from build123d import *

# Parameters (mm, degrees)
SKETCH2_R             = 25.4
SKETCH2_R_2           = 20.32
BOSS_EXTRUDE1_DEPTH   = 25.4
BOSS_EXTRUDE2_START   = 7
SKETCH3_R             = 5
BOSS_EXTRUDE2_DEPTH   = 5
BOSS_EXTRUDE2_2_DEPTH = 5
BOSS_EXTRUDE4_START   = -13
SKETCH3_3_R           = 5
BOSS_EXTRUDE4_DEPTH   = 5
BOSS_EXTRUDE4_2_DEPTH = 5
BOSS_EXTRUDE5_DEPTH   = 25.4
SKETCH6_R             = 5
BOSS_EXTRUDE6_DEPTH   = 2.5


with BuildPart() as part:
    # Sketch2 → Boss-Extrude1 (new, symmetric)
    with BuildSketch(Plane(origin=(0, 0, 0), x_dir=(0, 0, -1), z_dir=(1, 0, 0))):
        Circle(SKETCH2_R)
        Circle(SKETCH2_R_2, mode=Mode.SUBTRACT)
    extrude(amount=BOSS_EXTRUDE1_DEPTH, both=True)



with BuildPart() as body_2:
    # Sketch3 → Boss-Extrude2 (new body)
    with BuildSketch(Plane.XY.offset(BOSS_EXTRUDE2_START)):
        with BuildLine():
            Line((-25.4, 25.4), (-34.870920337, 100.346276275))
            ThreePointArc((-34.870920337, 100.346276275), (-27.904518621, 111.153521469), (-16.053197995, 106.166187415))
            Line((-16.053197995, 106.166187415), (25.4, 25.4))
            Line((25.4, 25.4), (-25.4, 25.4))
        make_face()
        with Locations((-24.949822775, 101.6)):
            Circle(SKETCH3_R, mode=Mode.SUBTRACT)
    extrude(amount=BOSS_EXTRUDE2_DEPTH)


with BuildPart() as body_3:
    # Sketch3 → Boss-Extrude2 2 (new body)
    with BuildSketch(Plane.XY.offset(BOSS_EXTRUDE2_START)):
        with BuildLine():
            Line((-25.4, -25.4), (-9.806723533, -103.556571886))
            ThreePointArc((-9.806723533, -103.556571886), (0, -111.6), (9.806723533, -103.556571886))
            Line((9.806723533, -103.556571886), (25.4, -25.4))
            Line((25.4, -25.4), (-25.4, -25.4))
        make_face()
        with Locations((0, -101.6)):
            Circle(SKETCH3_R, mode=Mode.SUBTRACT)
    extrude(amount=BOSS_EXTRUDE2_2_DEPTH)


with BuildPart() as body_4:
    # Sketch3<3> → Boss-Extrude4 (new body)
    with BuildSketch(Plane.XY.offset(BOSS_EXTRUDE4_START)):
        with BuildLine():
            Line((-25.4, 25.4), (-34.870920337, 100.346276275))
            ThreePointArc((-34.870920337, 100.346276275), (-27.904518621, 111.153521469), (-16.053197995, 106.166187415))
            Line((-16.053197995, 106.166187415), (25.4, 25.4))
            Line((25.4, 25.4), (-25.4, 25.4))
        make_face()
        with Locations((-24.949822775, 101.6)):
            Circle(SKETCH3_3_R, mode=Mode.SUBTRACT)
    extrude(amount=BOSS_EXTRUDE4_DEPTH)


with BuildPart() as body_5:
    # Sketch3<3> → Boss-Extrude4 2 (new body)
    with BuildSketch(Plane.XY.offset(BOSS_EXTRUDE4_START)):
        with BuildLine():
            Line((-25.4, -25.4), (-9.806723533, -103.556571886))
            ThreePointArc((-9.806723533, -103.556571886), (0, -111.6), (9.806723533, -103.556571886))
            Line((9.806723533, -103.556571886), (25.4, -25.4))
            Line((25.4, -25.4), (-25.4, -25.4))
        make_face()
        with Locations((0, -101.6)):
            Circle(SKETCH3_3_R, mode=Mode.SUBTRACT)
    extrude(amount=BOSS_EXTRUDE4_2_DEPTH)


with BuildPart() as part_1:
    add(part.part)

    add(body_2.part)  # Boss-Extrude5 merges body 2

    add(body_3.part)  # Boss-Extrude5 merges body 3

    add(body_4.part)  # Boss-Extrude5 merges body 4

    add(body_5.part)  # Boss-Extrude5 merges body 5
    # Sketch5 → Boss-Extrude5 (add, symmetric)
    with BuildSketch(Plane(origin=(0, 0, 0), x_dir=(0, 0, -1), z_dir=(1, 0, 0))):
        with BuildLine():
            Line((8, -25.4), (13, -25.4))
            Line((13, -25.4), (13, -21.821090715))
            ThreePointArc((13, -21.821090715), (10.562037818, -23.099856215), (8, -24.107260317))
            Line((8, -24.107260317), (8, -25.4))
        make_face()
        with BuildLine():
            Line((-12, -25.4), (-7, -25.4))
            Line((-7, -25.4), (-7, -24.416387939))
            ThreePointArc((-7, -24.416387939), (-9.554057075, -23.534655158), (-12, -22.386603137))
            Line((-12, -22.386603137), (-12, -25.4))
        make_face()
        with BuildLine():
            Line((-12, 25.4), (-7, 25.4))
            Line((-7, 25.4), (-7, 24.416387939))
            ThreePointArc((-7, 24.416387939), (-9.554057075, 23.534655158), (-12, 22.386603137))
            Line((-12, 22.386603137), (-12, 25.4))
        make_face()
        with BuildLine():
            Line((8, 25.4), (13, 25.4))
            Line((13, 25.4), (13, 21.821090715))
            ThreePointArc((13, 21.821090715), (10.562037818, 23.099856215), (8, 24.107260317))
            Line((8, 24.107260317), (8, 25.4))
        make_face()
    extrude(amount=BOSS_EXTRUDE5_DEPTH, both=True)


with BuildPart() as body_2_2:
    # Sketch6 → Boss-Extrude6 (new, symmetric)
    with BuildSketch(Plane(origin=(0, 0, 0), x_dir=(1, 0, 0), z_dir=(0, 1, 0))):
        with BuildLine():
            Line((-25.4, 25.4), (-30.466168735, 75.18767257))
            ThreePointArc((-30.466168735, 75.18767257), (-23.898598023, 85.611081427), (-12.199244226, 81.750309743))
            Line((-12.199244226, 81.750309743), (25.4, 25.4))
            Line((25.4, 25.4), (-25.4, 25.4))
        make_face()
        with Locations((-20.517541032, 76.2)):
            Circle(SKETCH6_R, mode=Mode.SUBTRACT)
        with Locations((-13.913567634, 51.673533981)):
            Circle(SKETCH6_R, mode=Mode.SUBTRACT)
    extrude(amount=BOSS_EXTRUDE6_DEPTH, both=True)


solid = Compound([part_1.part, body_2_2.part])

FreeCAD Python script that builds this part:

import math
import FreeCAD as App
import Part
import Sketcher
from FreeCAD import Vector

doc = App.newDocument("Part")
body = doc.addObject("PartDesign::Body", "Body")

# Sketch on YZ plane
sketch1 = body.newObject("Sketcher::SketchObject", "Sketch")
sketch1.AttachmentSupport = (doc.getObject("YZ_Plane"), [""])
sketch1.MapMode = "FlatFace"
sketch1.addGeometry(Part.Circle(Vector(0, 0, 0), Vector(0, 0, 1), 25), False)
sketch1.addGeometry(Part.Circle(Vector(0, 0, 0), Vector(0, 0, 1), 20), False)
sketch1.addConstraint(Sketcher.Constraint("Coincident", 0, 3, -1, 1))
sketch1.addConstraint(Sketcher.Constraint("Coincident", 1, 3, -1, 1))
sketch1.addConstraint(Sketcher.Constraint("Diameter", 0, 50.8))
sketch1.addConstraint(Sketcher.Constraint("Diameter", 1, 40.64))
pad1 = body.newObject("PartDesign::Pad", "Pad")
pad1.Profile = sketch1
pad1.Length = 50.8
pad1.Midplane = True
body2 = doc.addObject("PartDesign::Body", "Body001")

# Sketch on XY plane
sketch2 = body2.newObject("Sketcher::SketchObject", "Sketch001")
sketch2.AttachmentSupport = (doc.getObject("XY_Plane001"), [""])
sketch2.MapMode = "FlatFace"
sketch2.AttachmentOffset = App.Placement(Vector(0, 0, 7), App.Rotation())
sketch2.addGeometry(Part.LineSegment(Vector(-35, 100, 0), Vector(-25, 25, 0)), False)
sketch2.addGeometry(Part.LineSegment(Vector(-25, 25, 0), Vector(25, 25, 0)), False)
sketch2.addGeometry(Part.LineSegment(Vector(25, 25, 0), Vector(-16, 106, 0)), False)
sketch2.addGeometry(Part.ArcOfCircle(Part.Circle(Vector(-25, 102, 0), Vector(0, 0, 1), 10), math.radians(27), math.radians(187)), False)
sketch2.addGeometry(Part.Circle(Vector(-25, 102, 0), Vector(0, 0, 1), 5), False)
sketch2.addConstraint(Sketcher.Constraint("Coincident", 0, 2, 1, 1))
sketch2.addConstraint(Sketcher.Constraint("Coincident", 1, 2, 2, 1))
sketch2.addConstraint(Sketcher.Constraint("Tangent", 2, 2, 3, 1))
sketch2.addConstraint(Sketcher.Constraint("Tangent", 3, 2, 0, 1))
sketch2.addConstraint(Sketcher.Constraint("Horizontal", 1))
sketch2.addConstraint(Sketcher.Constraint("Coincident", 4, 3, 3, 3))
sketch2.addConstraint(Sketcher.Constraint("Diameter", 4, 10.0))
sketch2.addConstraint(Sketcher.Constraint("Radius", 3, 10.0))
sketch2.addConstraint(Sketcher.Constraint("DistanceX", 1, 1, 1, 2, 50.8))
sketch2.addConstraint(Sketcher.Constraint("DistanceY", -1, 1, 3, 3, 101.6))
sketch2.addConstraint(Sketcher.Constraint("DistanceX", 0, 2, -1, 1, 25.4))
sketch2.addConstraint(Sketcher.Constraint("DistanceY", -1, 1, 0, 2, 25.4))
sketch2.addConstraint(Sketcher.Constraint("DistanceX", 3, 2, -1, 1, 34.87092))
pad2 = body2.newObject("PartDesign::Pad", "Pad001")
pad2.Profile = sketch2
pad2.Length = 5
body3 = doc.addObject("PartDesign::Body", "Body002")

# Sketch on XY plane
sketch3 = body3.newObject("Sketcher::SketchObject", "Sketch002")
sketch3.AttachmentSupport = (doc.getObject("XY_Plane002"), [""])
sketch3.MapMode = "FlatFace"
sketch3.AttachmentOffset = App.Placement(Vector(0, 0, 7), App.Rotation())
sketch3.addGeometry(Part.LineSegment(Vector(-25, -25, 0), Vector(-10, -104, 0)), False)
sketch3.addGeometry(Part.ArcOfCircle(Part.Circle(Vector(0, -102, 0), Vector(0, 0, 1), 10), math.radians(-169), math.radians(-11)), False)
sketch3.addGeometry(Part.LineSegment(Vector(10, -104, 0), Vector(25, -25, 0)), False)
sketch3.addGeometry(Part.LineSegment(Vector(25, -25, 0), Vector(-25, -25, 0)), False)
sketch3.addGeometry(Part.Circle(Vector(0, -102, 0), Vector(0, 0, 1), 5), False)
sketch3.addConstraint(Sketcher.Constraint("Tangent", 0, 2, 1, 1))
sketch3.addConstraint(Sketcher.Constraint("Tangent", 1, 2, 2, 1))
sketch3.addConstraint(Sketcher.Constraint("Coincident", 2, 2, 3, 1))
sketch3.addConstraint(Sketcher.Constraint("Coincident", 3, 2, 0, 1))
sketch3.addConstraint(Sketcher.Constraint("Horizontal", 3))
sketch3.addConstraint(Sketcher.Constraint("Coincident", 4, 3, 1, 3))
sketch3.addConstraint(Sketcher.Constraint("Symmetric", 0, 2, 1, 2, -2))
sketch3.addConstraint(Sketcher.Constraint("Diameter", 4, 10.0))
sketch3.addConstraint(Sketcher.Constraint("Radius", 1, 10.0))
sketch3.addConstraint(Sketcher.Constraint("DistanceX", 3, 2, 3, 1, 50.8))
sketch3.addConstraint(Sketcher.Constraint("DistanceY", 1, 3, -1, 1, 101.6))
sketch3.addConstraint(Sketcher.Constraint("DistanceY", 2, 2, -1, 1, 25.4))
pad3 = body3.newObject("PartDesign::Pad", "Pad002")
pad3.Profile = sketch3
pad3.Length = 5
body4 = doc.addObject("PartDesign::Body", "Body003")

# Sketch on XY plane
sketch4 = body4.newObject("Sketcher::SketchObject", "Sketch003")
sketch4.AttachmentSupport = (doc.getObject("XY_Plane003"), [""])
sketch4.MapMode = "FlatFace"
sketch4.AttachmentOffset = App.Placement(Vector(0, 0, -13), App.Rotation())
sketch4.addGeometry(Part.LineSegment(Vector(-35, 100, 0), Vector(-25, 25, 0)), False)
sketch4.addGeometry(Part.LineSegment(Vector(-25, 25, 0), Vector(25, 25, 0)), False)
sketch4.addGeometry(Part.LineSegment(Vector(25, 25, 0), Vector(-16, 106, 0)), False)
sketch4.addGeometry(Part.ArcOfCircle(Part.Circle(Vector(-25, 102, 0), Vector(0, 0, 1), 10), math.radians(27), math.radians(187)), False)
sketch4.addGeometry(Part.Circle(Vector(-25, 102, 0), Vector(0, 0, 1), 5), False)
sketch4.addConstraint(Sketcher.Constraint("Coincident", 0, 2, 1, 1))
sketch4.addConstraint(Sketcher.Constraint("Coincident", 1, 2, 2, 1))
sketch4.addConstraint(Sketcher.Constraint("Tangent", 2, 2, 3, 1))
sketch4.addConstraint(Sketcher.Constraint("Tangent", 3, 2, 0, 1))
sketch4.addConstraint(Sketcher.Constraint("Horizontal", 1))
sketch4.addConstraint(Sketcher.Constraint("Coincident", 4, 3, 3, 3))
sketch4.addConstraint(Sketcher.Constraint("Diameter", 4, 10.0))
sketch4.addConstraint(Sketcher.Constraint("Radius", 3, 10.0))
sketch4.addConstraint(Sketcher.Constraint("DistanceX", 1, 1, 1, 2, 50.8))
sketch4.addConstraint(Sketcher.Constraint("DistanceY", -1, 1, 3, 3, 101.6))
sketch4.addConstraint(Sketcher.Constraint("DistanceX", 0, 2, -1, 1, 25.4))
sketch4.addConstraint(Sketcher.Constraint("DistanceY", -1, 1, 0, 2, 25.4))
sketch4.addConstraint(Sketcher.Constraint("DistanceX", 3, 2, -1, 1, 34.87092))
pad4 = body4.newObject("PartDesign::Pad", "Pad003")
pad4.Profile = sketch4
pad4.Length = 5
body5 = doc.addObject("PartDesign::Body", "Body004")

# Sketch on XY plane
sketch5 = body5.newObject("Sketcher::SketchObject", "Sketch004")
sketch5.AttachmentSupport = (doc.getObject("XY_Plane004"), [""])
sketch5.MapMode = "FlatFace"
sketch5.AttachmentOffset = App.Placement(Vector(0, 0, -13), App.Rotation())
sketch5.addGeometry(Part.LineSegment(Vector(-25, -25, 0), Vector(-10, -104, 0)), False)
sketch5.addGeometry(Part.ArcOfCircle(Part.Circle(Vector(0, -102, 0), Vector(0, 0, 1), 10), math.radians(-169), math.radians(-11)), False)
sketch5.addGeometry(Part.LineSegment(Vector(10, -104, 0), Vector(25, -25, 0)), False)
sketch5.addGeometry(Part.LineSegment(Vector(25, -25, 0), Vector(-25, -25, 0)), False)
sketch5.addGeometry(Part.Circle(Vector(0, -102, 0), Vector(0, 0, 1), 5), False)
sketch5.addConstraint(Sketcher.Constraint("Tangent", 0, 2, 1, 1))
sketch5.addConstraint(Sketcher.Constraint("Tangent", 1, 2, 2, 1))
sketch5.addConstraint(Sketcher.Constraint("Coincident", 2, 2, 3, 1))
sketch5.addConstraint(Sketcher.Constraint("Coincident", 3, 2, 0, 1))
sketch5.addConstraint(Sketcher.Constraint("Horizontal", 3))
sketch5.addConstraint(Sketcher.Constraint("Coincident", 4, 3, 1, 3))
sketch5.addConstraint(Sketcher.Constraint("Symmetric", 0, 2, 1, 2, -2))
sketch5.addConstraint(Sketcher.Constraint("Diameter", 4, 10.0))
sketch5.addConstraint(Sketcher.Constraint("Radius", 1, 10.0))
sketch5.addConstraint(Sketcher.Constraint("DistanceX", 3, 2, 3, 1, 50.8))
sketch5.addConstraint(Sketcher.Constraint("DistanceY", 1, 3, -1, 1, 101.6))
sketch5.addConstraint(Sketcher.Constraint("DistanceY", 2, 2, -1, 1, 25.4))
pad5 = body5.newObject("PartDesign::Pad", "Pad004")
pad5.Profile = sketch5
pad5.Length = 5
body.AllowCompound = True
doc.recompute()

boolean = body.newObject("PartDesign::Boolean", "Boolean")
boolean.Type = "Fuse"
boolean.addObjects([body2])
doc.recompute()

boolean2 = body.newObject("PartDesign::Boolean", "Boolean001")
boolean2.Type = "Fuse"
boolean2.addObjects([body3])
doc.recompute()

boolean3 = body.newObject("PartDesign::Boolean", "Boolean002")
boolean3.Type = "Fuse"
boolean3.addObjects([body4])
doc.recompute()

boolean4 = body.newObject("PartDesign::Boolean", "Boolean003")
boolean4.Type = "Fuse"
boolean4.addObjects([body5])

# Sketch on YZ plane
sketch6 = body.newObject("Sketcher::SketchObject", "Sketch005")
sketch6.AttachmentSupport = (doc.getObject("YZ_Plane"), [""])
sketch6.MapMode = "FlatFace"
sketch6.addGeometry(Part.LineSegment(Vector(-25.4, -8, 0), Vector(-25.4, -13, 0)), False)
sketch6.addGeometry(Part.LineSegment(Vector(-25.4, -13, 0), Vector(-21.8, -13, 0)), False)
sketch6.addGeometry(Part.ArcOfCircle(Part.Circle(Vector(0, 0, 0), Vector(0, 0, 1), 25.4), math.radians(-161.64), math.radians(-149.22)), False)
sketch6.addGeometry(Part.LineSegment(Vector(-24.1, -8, 0), Vector(-25.4, -8, 0)), False)
sketch6.addGeometry(Part.LineSegment(Vector(-25.4, 12, 0), Vector(-25.4, 7, 0)), False)
sketch6.addGeometry(Part.LineSegment(Vector(-25.4, 7, 0), Vector(-24.4, 7, 0)), False)
sketch6.addGeometry(Part.ArcOfCircle(Part.Circle(Vector(0, 0, 0), Vector(0, 0, 1), 25.4), math.radians(151.81), math.radians(164)), False)
sketch6.addGeometry(Part.LineSegment(Vector(-22.4, 12, 0), Vector(-25.4, 12, 0)), False)
sketch6.addGeometry(Part.LineSegment(Vector(25.4, 7, 0), Vector(25.4, 12, 0)), False)
sketch6.addGeometry(Part.LineSegment(Vector(25.4, 12, 0), Vector(22.4, 12, 0)), False)
sketch6.addGeometry(Part.ArcOfCircle(Part.Circle(Vector(0, 0, 0), Vector(0, 0, 1), 25.4), math.radians(16), math.radians(28.19)), False)
sketch6.addGeometry(Part.LineSegment(Vector(24.4, 7, 0), Vector(25.4, 7, 0)), False)
sketch6.addGeometry(Part.LineSegment(Vector(25.4, -13, 0), Vector(25.4, -8, 0)), False)
sketch6.addGeometry(Part.LineSegment(Vector(25.4, -8, 0), Vector(24.1, -8, 0)), False)
sketch6.addGeometry(Part.ArcOfCircle(Part.Circle(Vector(0, 0, 0), Vector(0, 0, 1), 25.4), math.radians(-30.78), math.radians(-18.36)), False)
sketch6.addGeometry(Part.LineSegment(Vector(21.8, -13, 0), Vector(25.4, -13, 0)), False)
sketch6.addConstraint(Sketcher.Constraint("Coincident", 0, 2, 1, 1))
sketch6.addConstraint(Sketcher.Constraint("Coincident", 1, 2, 2, 2))
sketch6.addConstraint(Sketcher.Constraint("Coincident", 2, 1, 3, 1))
sketch6.addConstraint(Sketcher.Constraint("Coincident", 3, 2, 0, 1))
sketch6.addConstraint(Sketcher.Constraint("Coincident", 4, 2, 5, 1))
sketch6.addConstraint(Sketcher.Constraint("Coincident", 5, 2, 6, 2))
sketch6.addConstraint(Sketcher.Constraint("Coincident", 6, 1, 7, 1))
sketch6.addConstraint(Sketcher.Constraint("Coincident", 7, 2, 4, 1))
sketch6.addConstraint(Sketcher.Constraint("Coincident", 8, 2, 9, 1))
sketch6.addConstraint(Sketcher.Constraint("Coincident", 9, 2, 10, 2))
sketch6.addConstraint(Sketcher.Constraint("Coincident", 10, 1, 11, 1))
sketch6.addConstraint(Sketcher.Constraint("Coincident", 11, 2, 8, 1))
sketch6.addConstraint(Sketcher.Constraint("Coincident", 12, 2, 13, 1))
sketch6.addConstraint(Sketcher.Constraint("Coincident", 13, 2, 14, 2))
sketch6.addConstraint(Sketcher.Constraint("Coincident", 14, 1, 15, 1))
sketch6.addConstraint(Sketcher.Constraint("Coincident", 15, 2, 12, 1))
sketch6.addConstraint(Sketcher.Constraint("Vertical", 0))
sketch6.addConstraint(Sketcher.Constraint("Horizontal", 1))
sketch6.addConstraint(Sketcher.Constraint("Horizontal", 3))
sketch6.addConstraint(Sketcher.Constraint("Vertical", 4))
sketch6.addConstraint(Sketcher.Constraint("Horizontal", 5))
sketch6.addConstraint(Sketcher.Constraint("Horizontal", 7))
sketch6.addConstraint(Sketcher.Constraint("Vertical", 8))
sketch6.addConstraint(Sketcher.Constraint("Horizontal", 9))
sketch6.addConstraint(Sketcher.Constraint("Horizontal", 11))
sketch6.addConstraint(Sketcher.Constraint("Vertical", 12))
sketch6.addConstraint(Sketcher.Constraint("Horizontal", 13))
sketch6.addConstraint(Sketcher.Constraint("Horizontal", 15))
sketch6.addConstraint(Sketcher.Constraint("Coincident", 2, 3, -1, 1))
sketch6.addConstraint(Sketcher.Constraint("Coincident", 6, 3, -1, 1))
sketch6.addConstraint(Sketcher.Constraint("Coincident", 10, 3, -1, 1))
sketch6.addConstraint(Sketcher.Constraint("Coincident", 14, 3, -1, 1))
sketch6.addConstraint(Sketcher.Constraint("Equal", 2, 6))
sketch6.addConstraint(Sketcher.Constraint("Equal", 6, 10))
sketch6.addConstraint(Sketcher.Constraint("Equal", 10, 14))
sketch6.addConstraint(Sketcher.Constraint("Symmetric", 7, 2, 8, 2, -2))
sketch6.addConstraint(Sketcher.Constraint("Symmetric", 3, 2, 12, 2, -2))
sketch6.addConstraint(Sketcher.Constraint("Horizontal", 5, 2, 10, 1))
sketch6.addConstraint(Sketcher.Constraint("Horizontal", 1, 2, 14, 1))
sketch6.addConstraint(Sketcher.Constraint("Vertical", 3, 2, 4, 2))
sketch6.addConstraint(Sketcher.Constraint("Equal", 0, 4))
sketch6.addConstraint(Sketcher.Constraint("Radius", 2, 25.4))
sketch6.addConstraint(Sketcher.Constraint("DistanceY", 0, 2, 0, 1, 5.0))
sketch6.addConstraint(Sketcher.Constraint("DistanceY", 0, 2, -1, 1, 13.0))
sketch6.addConstraint(Sketcher.Constraint("DistanceY", -1, 1, 4, 2, 7.0))
sketch6.addConstraint(Sketcher.Constraint("DistanceX", 0, 2, -1, 1, 25.4))
pad6 = body.newObject("PartDesign::Pad", "Pad005")
pad6.Profile = sketch6
pad6.Length = 50.8
pad6.Midplane = True
body6 = doc.addObject("PartDesign::Body", "Body005")

# Sketch on XZ plane
sketch7 = body6.newObject("Sketcher::SketchObject", "Sketch006")
sketch7.AttachmentSupport = (doc.getObject("XZ_Plane005"), [""])
sketch7.MapMode = "FlatFace"
sketch7.addGeometry(Part.LineSegment(Vector(-30, -75, 0), Vector(-25, -25, 0)), False)
sketch7.addGeometry(Part.LineSegment(Vector(-25, -25, 0), Vector(25, -25, 0)), False)
sketch7.addGeometry(Part.LineSegment(Vector(25, -25, 0), Vector(-12, -82, 0)), False)
sketch7.addGeometry(Part.ArcOfCircle(Part.Circle(Vector(-21, -76, 0), Vector(0, 0, 1), 10), math.radians(174), math.radians(326)), False)
sketch7.addGeometry(Part.Circle(Vector(-14, -52, 0), Vector(0, 0, 1), 5), False)
sketch7.addGeometry(Part.Circle(Vector(-21, -76, 0), Vector(0, 0, 1), 5), False)
sketch7.addConstraint(Sketcher.Constraint("Coincident", 0, 2, 1, 1))
sketch7.addConstraint(Sketcher.Constraint("Coincident", 1, 2, 2, 1))
sketch7.addConstraint(Sketcher.Constraint("Tangent", 2, 2, 3, 2))
sketch7.addConstraint(Sketcher.Constraint("Tangent", 3, 1, 0, 1))
sketch7.addConstraint(Sketcher.Constraint("Horizontal", 1))
sketch7.addConstraint(Sketcher.Constraint("Coincident", 5, 3, 3, 3))
sketch7.addConstraint(Sketcher.Constraint("Equal", 4, 5))
sketch7.addConstraint(Sketcher.Constraint("Diameter", 4, 10.0))
sketch7.addConstraint(Sketcher.Constraint("Radius", 3, 10.0))
sketch7.addConstraint(Sketcher.Constraint("DistanceX", 1, 1, 1, 2, 50.8))
sketch7.addConstraint(Sketcher.Constraint("DistanceY", 3, 3, -1, 1, 76.2))
sketch7.addConstraint(Sketcher.Constraint("DistanceX", 0, 2, -1, 1, 25.4))
sketch7.addConstraint(Sketcher.Constraint("DistanceY", 0, 2, -1, 1, 25.4))
sketch7.addConstraint(Sketcher.Constraint("DistanceX", 3, 1, 4, 3, 16.552601))
sketch7.addConstraint(Sketcher.Constraint("DistanceX", 3, 3, -1, 1, 20.517541))
sketch7.addConstraint(Sketcher.Constraint("DistanceY", 3, 1, 4, 3, 23.514139))
pad7 = body6.newObject("PartDesign::Pad", "Pad006")
pad7.Profile = sketch7
pad7.Length = 5
pad7.Midplane = True

doc.recompute()
